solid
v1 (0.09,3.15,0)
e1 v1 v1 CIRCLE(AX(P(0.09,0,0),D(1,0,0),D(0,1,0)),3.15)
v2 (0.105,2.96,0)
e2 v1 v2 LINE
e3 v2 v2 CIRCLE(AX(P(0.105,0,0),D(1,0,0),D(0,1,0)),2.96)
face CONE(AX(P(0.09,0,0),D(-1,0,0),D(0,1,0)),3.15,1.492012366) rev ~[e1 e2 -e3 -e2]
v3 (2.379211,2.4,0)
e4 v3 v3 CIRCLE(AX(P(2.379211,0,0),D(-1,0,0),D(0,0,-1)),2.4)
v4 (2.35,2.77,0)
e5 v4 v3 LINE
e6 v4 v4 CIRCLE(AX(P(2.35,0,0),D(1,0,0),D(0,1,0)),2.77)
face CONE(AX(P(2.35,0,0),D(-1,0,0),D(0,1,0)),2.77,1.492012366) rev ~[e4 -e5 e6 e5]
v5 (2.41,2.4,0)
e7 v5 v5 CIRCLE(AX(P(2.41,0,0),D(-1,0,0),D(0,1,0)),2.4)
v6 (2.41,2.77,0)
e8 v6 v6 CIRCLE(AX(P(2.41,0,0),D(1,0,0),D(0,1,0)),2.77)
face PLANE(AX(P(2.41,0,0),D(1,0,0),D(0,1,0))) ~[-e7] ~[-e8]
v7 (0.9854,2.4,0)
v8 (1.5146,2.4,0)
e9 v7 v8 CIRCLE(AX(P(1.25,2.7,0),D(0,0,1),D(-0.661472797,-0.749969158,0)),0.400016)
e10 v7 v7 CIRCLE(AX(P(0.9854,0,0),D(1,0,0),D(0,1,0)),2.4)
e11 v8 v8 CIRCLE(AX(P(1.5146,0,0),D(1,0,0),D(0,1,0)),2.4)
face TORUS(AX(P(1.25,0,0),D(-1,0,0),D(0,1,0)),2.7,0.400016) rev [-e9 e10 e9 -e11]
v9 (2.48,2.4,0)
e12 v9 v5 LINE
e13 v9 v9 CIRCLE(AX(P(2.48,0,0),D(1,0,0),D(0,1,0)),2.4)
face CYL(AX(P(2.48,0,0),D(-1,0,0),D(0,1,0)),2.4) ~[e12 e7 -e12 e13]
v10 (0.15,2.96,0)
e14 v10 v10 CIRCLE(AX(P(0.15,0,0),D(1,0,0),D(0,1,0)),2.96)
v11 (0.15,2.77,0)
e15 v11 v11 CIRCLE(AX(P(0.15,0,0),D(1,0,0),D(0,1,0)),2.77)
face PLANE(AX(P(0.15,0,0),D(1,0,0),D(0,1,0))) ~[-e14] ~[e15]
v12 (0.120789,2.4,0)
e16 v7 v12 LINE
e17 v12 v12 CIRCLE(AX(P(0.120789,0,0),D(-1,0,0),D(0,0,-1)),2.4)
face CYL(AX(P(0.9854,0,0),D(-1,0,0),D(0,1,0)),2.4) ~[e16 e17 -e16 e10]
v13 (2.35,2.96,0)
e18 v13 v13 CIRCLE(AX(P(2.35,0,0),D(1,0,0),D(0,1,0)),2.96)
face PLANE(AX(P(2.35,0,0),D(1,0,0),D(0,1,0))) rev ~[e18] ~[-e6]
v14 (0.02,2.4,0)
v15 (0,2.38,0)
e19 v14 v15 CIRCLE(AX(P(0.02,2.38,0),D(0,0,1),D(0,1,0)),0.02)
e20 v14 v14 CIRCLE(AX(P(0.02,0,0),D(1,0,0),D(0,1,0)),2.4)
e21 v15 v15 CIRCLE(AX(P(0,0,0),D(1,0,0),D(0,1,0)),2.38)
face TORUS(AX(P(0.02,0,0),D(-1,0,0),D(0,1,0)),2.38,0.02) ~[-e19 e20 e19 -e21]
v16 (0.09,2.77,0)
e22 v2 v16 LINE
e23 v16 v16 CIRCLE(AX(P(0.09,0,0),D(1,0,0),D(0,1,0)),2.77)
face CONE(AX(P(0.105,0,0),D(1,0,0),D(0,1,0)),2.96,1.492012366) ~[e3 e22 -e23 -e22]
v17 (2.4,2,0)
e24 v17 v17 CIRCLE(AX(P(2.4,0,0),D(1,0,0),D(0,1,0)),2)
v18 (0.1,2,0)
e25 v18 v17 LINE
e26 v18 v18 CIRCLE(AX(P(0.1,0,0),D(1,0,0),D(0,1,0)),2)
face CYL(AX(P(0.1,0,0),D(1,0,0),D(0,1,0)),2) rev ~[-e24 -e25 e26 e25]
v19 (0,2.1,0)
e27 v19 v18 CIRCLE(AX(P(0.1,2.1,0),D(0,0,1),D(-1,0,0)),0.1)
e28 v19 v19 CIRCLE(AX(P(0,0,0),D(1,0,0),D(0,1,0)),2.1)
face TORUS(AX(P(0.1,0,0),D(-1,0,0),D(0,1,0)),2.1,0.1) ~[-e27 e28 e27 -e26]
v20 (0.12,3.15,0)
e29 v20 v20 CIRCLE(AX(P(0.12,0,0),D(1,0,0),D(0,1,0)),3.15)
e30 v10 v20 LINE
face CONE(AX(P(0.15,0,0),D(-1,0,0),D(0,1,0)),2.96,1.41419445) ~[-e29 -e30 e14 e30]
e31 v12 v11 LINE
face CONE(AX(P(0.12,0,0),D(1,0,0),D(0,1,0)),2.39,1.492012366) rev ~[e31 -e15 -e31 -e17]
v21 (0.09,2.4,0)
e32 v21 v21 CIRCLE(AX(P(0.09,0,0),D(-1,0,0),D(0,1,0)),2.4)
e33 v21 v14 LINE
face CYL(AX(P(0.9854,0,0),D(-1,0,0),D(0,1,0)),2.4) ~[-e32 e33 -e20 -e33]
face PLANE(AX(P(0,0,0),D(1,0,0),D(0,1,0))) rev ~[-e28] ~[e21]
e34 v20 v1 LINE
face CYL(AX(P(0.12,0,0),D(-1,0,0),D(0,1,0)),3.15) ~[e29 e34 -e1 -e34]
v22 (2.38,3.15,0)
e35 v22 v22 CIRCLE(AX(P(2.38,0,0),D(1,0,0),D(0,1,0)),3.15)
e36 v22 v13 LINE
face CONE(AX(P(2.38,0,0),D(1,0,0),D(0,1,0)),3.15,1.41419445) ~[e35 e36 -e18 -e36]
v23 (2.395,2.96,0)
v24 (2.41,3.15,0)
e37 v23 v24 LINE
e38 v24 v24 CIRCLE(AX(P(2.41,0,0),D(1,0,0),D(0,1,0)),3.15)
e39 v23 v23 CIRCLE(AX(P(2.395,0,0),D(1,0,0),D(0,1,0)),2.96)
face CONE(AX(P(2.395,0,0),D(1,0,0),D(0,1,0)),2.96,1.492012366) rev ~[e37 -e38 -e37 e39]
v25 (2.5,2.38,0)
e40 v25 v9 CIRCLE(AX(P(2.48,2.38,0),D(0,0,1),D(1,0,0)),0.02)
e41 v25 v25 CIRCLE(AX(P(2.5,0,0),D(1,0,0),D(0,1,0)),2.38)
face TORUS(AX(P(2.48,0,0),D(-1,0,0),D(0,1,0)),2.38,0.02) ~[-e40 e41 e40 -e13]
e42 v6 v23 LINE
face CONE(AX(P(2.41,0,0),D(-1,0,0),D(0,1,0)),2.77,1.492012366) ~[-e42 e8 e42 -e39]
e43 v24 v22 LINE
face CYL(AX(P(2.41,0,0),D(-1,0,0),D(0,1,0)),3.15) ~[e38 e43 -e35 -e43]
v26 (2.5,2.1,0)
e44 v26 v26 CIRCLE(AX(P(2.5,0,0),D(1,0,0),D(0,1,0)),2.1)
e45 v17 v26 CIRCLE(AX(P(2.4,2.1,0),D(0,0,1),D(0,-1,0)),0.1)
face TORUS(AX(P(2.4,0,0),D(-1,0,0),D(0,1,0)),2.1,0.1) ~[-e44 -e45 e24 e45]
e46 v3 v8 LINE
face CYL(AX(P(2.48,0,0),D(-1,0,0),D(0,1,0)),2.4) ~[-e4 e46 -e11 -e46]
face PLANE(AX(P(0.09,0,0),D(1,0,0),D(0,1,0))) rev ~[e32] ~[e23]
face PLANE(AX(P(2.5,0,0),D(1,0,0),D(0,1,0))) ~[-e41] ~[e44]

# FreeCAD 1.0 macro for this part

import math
import FreeCAD as App
import Part
import Sketcher
from FreeCAD import Vector
Q = App.Units.Quantity

doc = App.newDocument("Part")
params = doc.addObject("Spreadsheet::Sheet", "Params")
for row, (alias, value) in enumerate([
    ("sketch1_radius", "0.1 mm"),
    ("sketch1_radius2", "0.4 mm"),
    ("sketch1_radius3", "0.02 mm"),
    ("sketch1_width", "2.3 mm"),
    ("sketch1_height", "0.28 mm"),
    ("revolution_angle", "360 deg"),
    ("sketch2_width", "0.03 mm"),
    ("sketch2_height", "0.38 mm"),
    ("sketch2_height2", "0.19 mm"),
    ("revolution2_angle", "360 deg"),
    ("sketch3_width", "0.03 mm"),
    ("sketch3_height", "0.19 mm"),
    ("sketch3_height2", "0.38 mm"),
    ("revolution3_angle", "360 deg"),
], start=1):
    params.set(f"A{row}", alias)
    params.set(f"B{row}", "=" + value)
    params.setAlias(f"B{row}", alias)

body = doc.addObject("PartDesign::Body", "Body")

# Sketch on XY plane
sketch1 = doc.addObject("Sketcher::SketchObject", "Sketch")
body.addObject(sketch1)
sketch1.AttachmentSupport = (doc.XY_Plane, [""])
sketch1.MapMode = "FlatFace"
sketch1.addGeometry([
    Part.ArcOfCircle(Part.Circle(Vector(0.02, 2.38, 0), Vector(0, 0, 1), 0.02), math.radians(90), math.radians(180)),  # 0
    Part.LineSegment(Vector(0, 2.38, 0), Vector(0, 2.1, 0)),  # 1
    Part.ArcOfCircle(Part.Circle(Vector(0.1, 2.1, 0), Vector(0, 0, 1), 0.1), math.radians(180), math.radians(270)),  # 2
    Part.LineSegment(Vector(0.1, 2, 0), Vector(2.4, 2, 0)),  # 3
    Part.ArcOfCircle(Part.Circle(Vector(2.4, 2.1, 0), Vector(0, 0, 1), 0.1), math.radians(-90), math.radians(0)),  # 4
    Part.LineSegment(Vector(2.5, 2.1, 0), Vector(2.5, 2.38, 0)),  # 5
    Part.ArcOfCircle(Part.Circle(Vector(2.48, 2.38, 0), Vector(0, 0, 1), 0.02), math.radians(0), math.radians(90)),  # 6
    Part.LineSegment(Vector(2.48, 2.4, 0), Vector(1.5146, 2.4, 0)),  # 7
    Part.ArcOfCircle(Part.Circle(Vector(1.25, 2.7, 0), Vector(0, 0, 1), 0.400016), math.radians(-131.412294), math.radians(-48.587706)),  # 8
    Part.LineSegment(Vector(0.9854, 2.4, 0), Vector(0.02, 2.4, 0)),  # 9
], False)
sketch1.addConstraint([
    Sketcher.Constraint("Tangent", 0, 2, 1, 1),
    Sketcher.Constraint("Tangent", 1, 2, 2, 1),
    Sketcher.Constraint("Tangent", 2, 2, 3, 1),
    Sketcher.Constraint("Tangent", 3, 2, 4, 1),
    Sketcher.Constraint("Tangent", 4, 2, 5, 1),
    Sketcher.Constraint("Tangent", 5, 2, 6, 1),
    Sketcher.Constraint("Tangent", 6, 2, 7, 1),
    Sketcher.Constraint("Coincident", 7, 2, 8, 2),
    Sketcher.Constraint("Coincident", 8, 1, 9, 1),
    Sketcher.Constraint("Tangent", 9, 2, 0, 1),
    Sketcher.Constraint("Vertical", 1),
    Sketcher.Constraint("Horizontal", 3),
    Sketcher.Constraint("Vertical", 5),
    Sketcher.Constraint("Horizontal", 7),
    Sketcher.Constraint("Horizontal", 9),
    Sketcher.Constraint("Equal", 2, 4),
    Sketcher.Constraint("Equal", 0, 6),
    Sketcher.Constraint("PointOnObject", 0, 2, -2),
    Sketcher.Constraint("Horizontal", 0, 3, 6, 3),
    Sketcher.Constraint("Equal", 7, 9),
    Sketcher.Constraint("Radius", 2, Q("0.1 mm")),
    Sketcher.Constraint("Radius", 8, Q("0.4 mm")),
    Sketcher.Constraint("Radius", 0, Q("0.02 mm")),
    Sketcher.Constraint("DistanceX", 3, 1, 3, 2, Q("2.3 mm")),
    Sketcher.Constraint("DistanceY", -1, 1, 2, 2, Q("2 mm")),
    Sketcher.Constraint("DistanceY", 1, 2, 1, 1, Q("0.28 mm")),
    Sketcher.Constraint("DistanceY", -1, 1, 8, 3, Q("2.7 mm")),
])
sketch1.setExpression("Constraints[20]", "Params.sketch1_radius")
sketch1.setExpression("Constraints[21]", "Params.sketch1_radius2")
sketch1.setExpression("Constraints[22]", "Params.sketch1_radius3")
sketch1.setExpression("Constraints[23]", "Params.sketch1_width")
sketch1.setExpression("Constraints[25]", "Params.sketch1_height")
revolution = doc.addObject("PartDesign::Revolution", "Revolution")
body.addObject(revolution)
revolution.Profile = sketch1
revolution.ReferenceAxis = (sketch1, ["H_Axis"])
revolution.setExpression("Angle", "Params.revolution_angle")

# Sketch on XY plane
sketch2 = doc.addObject("Sketcher::SketchObject", "Sketch001")
body.addObject(sketch2)
sketch2.AttachmentSupport = (doc.XY_Plane, [""])
sketch2.MapMode = "FlatFace"
sketch2.addGeometry([
    Part.LineSegment(Vector(0.12, 3.15, 0), Vector(0.09, 3.15, 0)),  # 0
    Part.LineSegment(Vector(0.09, 3.15, 0), Vector(0.105, 2.96, 0)),  # 1
    Part.LineSegment(Vector(0.105, 2.96, 0), Vector(0.09, 2.77, 0)),  # 2
    Part.LineSegment(Vector(0.09, 2.77, 0), Vector(0.09, 2.39, 0)),  # 3
    Part.LineSegment(Vector(0.09, 2.39, 0), Vector(0.12, 2.39, 0)),  # 4
    Part.LineSegment(Vector(0.12, 2.39, 0), Vector(0.15, 2.77, 0)),  # 5
    Part.LineSegment(Vector(0.15, 2.77, 0), Vector(0.15, 2.96, 0)),  # 6
    Part.LineSegment(Vector(0.15, 2.96, 0), Vector(0.12, 3.15, 0)),  # 7
], False)
sketch2.addConstraint([
    Sketcher.Constraint("Coincident", 0, 2, 1, 1),
    Sketcher.Constraint("Coincident", 1, 2, 2, 1),
    Sketcher.Constraint("Coincident", 2, 2, 3, 1),
    Sketcher.Constraint("Coincident", 3, 2, 4, 1),
    Sketcher.Constraint("Coincident", 4, 2, 5, 1),
    Sketcher.Constraint("Coincident", 5, 2, 6, 1),
    Sketcher.Constraint("Coincident", 6, 2, 7, 1),
    Sketcher.Constraint("Coincident", 7, 2, 0, 1),
    Sketcher.Constraint("Horizontal", 0),
    Sketcher.Constraint("Vertical", 3),
    Sketcher.Constraint("Horizontal", 4),
    Sketcher.Constraint("Vertical", 6),
    Sketcher.Constraint("Parallel", 2, 5),
    Sketcher.Constraint("Horizontal", 2, 2, 5, 2),
    Sketcher.Constraint("Horizontal", 1, 2, 6, 2),
    Sketcher.Constraint("Vertical", 0, 2, 2, 2),
    Sketcher.Constraint("Vertical", 4, 2, 7, 2),
    Sketcher.Constraint("Equal", 1, 2),
    Sketcher.Constraint("DistanceX", 0, 2, 0, 1, Q("0.03 mm")),
    Sketcher.Constraint("DistanceY", 3, 2, 3, 1, Q("0.38 mm")),
    Sketcher.Constraint("DistanceY", 6, 1, 6, 2, Q("0.19 mm")),
    Sketcher.Constraint("DistanceX", -1, 1, 0, 2, Q("0.09 mm")),
    Sketcher.Constraint("DistanceY", -1, 1, 0, 2, Q("3.15 mm")),
    Sketcher.Constraint("DistanceX", -1, 1, 5, 2, Q("0.15 mm")),
])
sketch2.setExpression("Constraints[18]", "Params.sketch2_width")
sketch2.setExpression("Constraints[19]", "Params.sketch2_height")
sketch2.setExpression("Constraints[20]", "Params.sketch2_height2")
revolution2 = doc.addObject("PartDesign::Revolution", "Revolution001")
body.addObject(revolution2)
revolution2.Profile = sketch2
revolution2.ReferenceAxis = (sketch2, ["H_Axis"])
revolution2.setExpression("Angle", "Params.revolution2_angle")

# Sketch on XY plane
sketch3 = doc.addObject("Sketcher::SketchObject", "Sketch002")
body.addObject(sketch3)
sketch3.AttachmentSupport = (doc.XY_Plane, [""])
sketch3.MapMode = "FlatFace"
sketch3.addGeometry([
    Part.LineSegment(Vector(2.38, 3.15, 0), Vector(2.35, 2.96, 0)),  # 0
    Part.LineSegment(Vector(2.35, 2.96, 0), Vector(2.35, 2.77, 0)),  # 1
    Part.LineSegment(Vector(2.35, 2.77, 0), Vector(2.38, 2.39, 0)),  # 2
    Part.LineSegment(Vector(2.38, 2.39, 0), Vector(2.41, 2.39, 0)),  # 3
    Part.LineSegment(Vector(2.41, 2.39, 0), Vector(2.41, 2.77, 0)),  # 4
    Part.LineSegment(Vector(2.41, 2.77, 0), Vector(2.395, 2.96, 0)),  # 5
    Part.LineSegment(Vector(2.395, 2.96, 0), Vector(2.41, 3.15, 0)),  # 6
    Part.LineSegment(Vector(2.41, 3.15, 0), Vector(2.38, 3.15, 0)),  # 7
], False)
sketch3.addConstraint([
    Sketcher.Constraint("Coincident", 0, 2, 1, 1),
    Sketcher.Constraint("Coincident", 1, 2, 2, 1),
    Sketcher.Constraint("Coincident", 2, 2, 3, 1),
    Sketcher.Constraint("Coincident", 3, 2, 4, 1),
    Sketcher.Constraint("Coincident", 4, 2, 5, 1),
    Sketcher.Constraint("Coincident", 5, 2, 6, 1),
    Sketcher.Constraint("Coincident", 6, 2, 7, 1),
    Sketcher.Constraint("Coincident", 7, 2, 0, 1),
    Sketcher.Constraint("Vertical", 1),
    Sketcher.Constraint("Horizontal", 3),
    Sketcher.Constraint("Vertical", 4),
    Sketcher.Constraint("Horizontal", 7),
    Sketcher.Constraint("Parallel", 2, 5),
    Sketcher.Constraint("Horizontal", 1, 2, 4, 2),
    Sketcher.Constraint("Horizontal", 0, 2, 5, 2),
    Sketcher.Constraint("Vertical", 4, 2, 6, 2),
    Sketcher.Constraint("Vertical", 2, 2, 7, 2),
    Sketcher.Constraint("Equal", 5, 6),
    Sketcher.Constraint("DistanceX", 3, 1, 3, 2, Q("0.03 mm")),
    Sketcher.Constraint("DistanceY", 1, 2, 1, 1, Q("0.19 mm")),
    Sketcher.Constraint("DistanceY", 4, 1, 4, 2, Q("0.38 mm")),
    Sketcher.Constraint("DistanceX", -1, 1, 0, 2, Q("2.35 mm")),
    Sketcher.Constraint("DistanceY", -1, 1, 0, 2, Q("2.96 mm")),
    Sketcher.Constraint("DistanceX", -1, 1, 2, 2, Q("2.38 mm")),
])
sketch3.setExpression("Constraints[18]", "Params.sketch3_width")
sketch3.setExpression("Constraints[19]", "Params.sketch3_height")
sketch3.setExpression("Constraints[20]", "Params.sketch3_height2")
revolution3 = doc.addObject("PartDesign::Revolution", "Revolution002")
body.addObject(revolution3)
revolution3.Profile = sketch3
revolution3.ReferenceAxis = (sketch3, ["H_Axis"])
revolution3.setExpression("Angle", "Params.revolution3_angle")

doc.recompute()
